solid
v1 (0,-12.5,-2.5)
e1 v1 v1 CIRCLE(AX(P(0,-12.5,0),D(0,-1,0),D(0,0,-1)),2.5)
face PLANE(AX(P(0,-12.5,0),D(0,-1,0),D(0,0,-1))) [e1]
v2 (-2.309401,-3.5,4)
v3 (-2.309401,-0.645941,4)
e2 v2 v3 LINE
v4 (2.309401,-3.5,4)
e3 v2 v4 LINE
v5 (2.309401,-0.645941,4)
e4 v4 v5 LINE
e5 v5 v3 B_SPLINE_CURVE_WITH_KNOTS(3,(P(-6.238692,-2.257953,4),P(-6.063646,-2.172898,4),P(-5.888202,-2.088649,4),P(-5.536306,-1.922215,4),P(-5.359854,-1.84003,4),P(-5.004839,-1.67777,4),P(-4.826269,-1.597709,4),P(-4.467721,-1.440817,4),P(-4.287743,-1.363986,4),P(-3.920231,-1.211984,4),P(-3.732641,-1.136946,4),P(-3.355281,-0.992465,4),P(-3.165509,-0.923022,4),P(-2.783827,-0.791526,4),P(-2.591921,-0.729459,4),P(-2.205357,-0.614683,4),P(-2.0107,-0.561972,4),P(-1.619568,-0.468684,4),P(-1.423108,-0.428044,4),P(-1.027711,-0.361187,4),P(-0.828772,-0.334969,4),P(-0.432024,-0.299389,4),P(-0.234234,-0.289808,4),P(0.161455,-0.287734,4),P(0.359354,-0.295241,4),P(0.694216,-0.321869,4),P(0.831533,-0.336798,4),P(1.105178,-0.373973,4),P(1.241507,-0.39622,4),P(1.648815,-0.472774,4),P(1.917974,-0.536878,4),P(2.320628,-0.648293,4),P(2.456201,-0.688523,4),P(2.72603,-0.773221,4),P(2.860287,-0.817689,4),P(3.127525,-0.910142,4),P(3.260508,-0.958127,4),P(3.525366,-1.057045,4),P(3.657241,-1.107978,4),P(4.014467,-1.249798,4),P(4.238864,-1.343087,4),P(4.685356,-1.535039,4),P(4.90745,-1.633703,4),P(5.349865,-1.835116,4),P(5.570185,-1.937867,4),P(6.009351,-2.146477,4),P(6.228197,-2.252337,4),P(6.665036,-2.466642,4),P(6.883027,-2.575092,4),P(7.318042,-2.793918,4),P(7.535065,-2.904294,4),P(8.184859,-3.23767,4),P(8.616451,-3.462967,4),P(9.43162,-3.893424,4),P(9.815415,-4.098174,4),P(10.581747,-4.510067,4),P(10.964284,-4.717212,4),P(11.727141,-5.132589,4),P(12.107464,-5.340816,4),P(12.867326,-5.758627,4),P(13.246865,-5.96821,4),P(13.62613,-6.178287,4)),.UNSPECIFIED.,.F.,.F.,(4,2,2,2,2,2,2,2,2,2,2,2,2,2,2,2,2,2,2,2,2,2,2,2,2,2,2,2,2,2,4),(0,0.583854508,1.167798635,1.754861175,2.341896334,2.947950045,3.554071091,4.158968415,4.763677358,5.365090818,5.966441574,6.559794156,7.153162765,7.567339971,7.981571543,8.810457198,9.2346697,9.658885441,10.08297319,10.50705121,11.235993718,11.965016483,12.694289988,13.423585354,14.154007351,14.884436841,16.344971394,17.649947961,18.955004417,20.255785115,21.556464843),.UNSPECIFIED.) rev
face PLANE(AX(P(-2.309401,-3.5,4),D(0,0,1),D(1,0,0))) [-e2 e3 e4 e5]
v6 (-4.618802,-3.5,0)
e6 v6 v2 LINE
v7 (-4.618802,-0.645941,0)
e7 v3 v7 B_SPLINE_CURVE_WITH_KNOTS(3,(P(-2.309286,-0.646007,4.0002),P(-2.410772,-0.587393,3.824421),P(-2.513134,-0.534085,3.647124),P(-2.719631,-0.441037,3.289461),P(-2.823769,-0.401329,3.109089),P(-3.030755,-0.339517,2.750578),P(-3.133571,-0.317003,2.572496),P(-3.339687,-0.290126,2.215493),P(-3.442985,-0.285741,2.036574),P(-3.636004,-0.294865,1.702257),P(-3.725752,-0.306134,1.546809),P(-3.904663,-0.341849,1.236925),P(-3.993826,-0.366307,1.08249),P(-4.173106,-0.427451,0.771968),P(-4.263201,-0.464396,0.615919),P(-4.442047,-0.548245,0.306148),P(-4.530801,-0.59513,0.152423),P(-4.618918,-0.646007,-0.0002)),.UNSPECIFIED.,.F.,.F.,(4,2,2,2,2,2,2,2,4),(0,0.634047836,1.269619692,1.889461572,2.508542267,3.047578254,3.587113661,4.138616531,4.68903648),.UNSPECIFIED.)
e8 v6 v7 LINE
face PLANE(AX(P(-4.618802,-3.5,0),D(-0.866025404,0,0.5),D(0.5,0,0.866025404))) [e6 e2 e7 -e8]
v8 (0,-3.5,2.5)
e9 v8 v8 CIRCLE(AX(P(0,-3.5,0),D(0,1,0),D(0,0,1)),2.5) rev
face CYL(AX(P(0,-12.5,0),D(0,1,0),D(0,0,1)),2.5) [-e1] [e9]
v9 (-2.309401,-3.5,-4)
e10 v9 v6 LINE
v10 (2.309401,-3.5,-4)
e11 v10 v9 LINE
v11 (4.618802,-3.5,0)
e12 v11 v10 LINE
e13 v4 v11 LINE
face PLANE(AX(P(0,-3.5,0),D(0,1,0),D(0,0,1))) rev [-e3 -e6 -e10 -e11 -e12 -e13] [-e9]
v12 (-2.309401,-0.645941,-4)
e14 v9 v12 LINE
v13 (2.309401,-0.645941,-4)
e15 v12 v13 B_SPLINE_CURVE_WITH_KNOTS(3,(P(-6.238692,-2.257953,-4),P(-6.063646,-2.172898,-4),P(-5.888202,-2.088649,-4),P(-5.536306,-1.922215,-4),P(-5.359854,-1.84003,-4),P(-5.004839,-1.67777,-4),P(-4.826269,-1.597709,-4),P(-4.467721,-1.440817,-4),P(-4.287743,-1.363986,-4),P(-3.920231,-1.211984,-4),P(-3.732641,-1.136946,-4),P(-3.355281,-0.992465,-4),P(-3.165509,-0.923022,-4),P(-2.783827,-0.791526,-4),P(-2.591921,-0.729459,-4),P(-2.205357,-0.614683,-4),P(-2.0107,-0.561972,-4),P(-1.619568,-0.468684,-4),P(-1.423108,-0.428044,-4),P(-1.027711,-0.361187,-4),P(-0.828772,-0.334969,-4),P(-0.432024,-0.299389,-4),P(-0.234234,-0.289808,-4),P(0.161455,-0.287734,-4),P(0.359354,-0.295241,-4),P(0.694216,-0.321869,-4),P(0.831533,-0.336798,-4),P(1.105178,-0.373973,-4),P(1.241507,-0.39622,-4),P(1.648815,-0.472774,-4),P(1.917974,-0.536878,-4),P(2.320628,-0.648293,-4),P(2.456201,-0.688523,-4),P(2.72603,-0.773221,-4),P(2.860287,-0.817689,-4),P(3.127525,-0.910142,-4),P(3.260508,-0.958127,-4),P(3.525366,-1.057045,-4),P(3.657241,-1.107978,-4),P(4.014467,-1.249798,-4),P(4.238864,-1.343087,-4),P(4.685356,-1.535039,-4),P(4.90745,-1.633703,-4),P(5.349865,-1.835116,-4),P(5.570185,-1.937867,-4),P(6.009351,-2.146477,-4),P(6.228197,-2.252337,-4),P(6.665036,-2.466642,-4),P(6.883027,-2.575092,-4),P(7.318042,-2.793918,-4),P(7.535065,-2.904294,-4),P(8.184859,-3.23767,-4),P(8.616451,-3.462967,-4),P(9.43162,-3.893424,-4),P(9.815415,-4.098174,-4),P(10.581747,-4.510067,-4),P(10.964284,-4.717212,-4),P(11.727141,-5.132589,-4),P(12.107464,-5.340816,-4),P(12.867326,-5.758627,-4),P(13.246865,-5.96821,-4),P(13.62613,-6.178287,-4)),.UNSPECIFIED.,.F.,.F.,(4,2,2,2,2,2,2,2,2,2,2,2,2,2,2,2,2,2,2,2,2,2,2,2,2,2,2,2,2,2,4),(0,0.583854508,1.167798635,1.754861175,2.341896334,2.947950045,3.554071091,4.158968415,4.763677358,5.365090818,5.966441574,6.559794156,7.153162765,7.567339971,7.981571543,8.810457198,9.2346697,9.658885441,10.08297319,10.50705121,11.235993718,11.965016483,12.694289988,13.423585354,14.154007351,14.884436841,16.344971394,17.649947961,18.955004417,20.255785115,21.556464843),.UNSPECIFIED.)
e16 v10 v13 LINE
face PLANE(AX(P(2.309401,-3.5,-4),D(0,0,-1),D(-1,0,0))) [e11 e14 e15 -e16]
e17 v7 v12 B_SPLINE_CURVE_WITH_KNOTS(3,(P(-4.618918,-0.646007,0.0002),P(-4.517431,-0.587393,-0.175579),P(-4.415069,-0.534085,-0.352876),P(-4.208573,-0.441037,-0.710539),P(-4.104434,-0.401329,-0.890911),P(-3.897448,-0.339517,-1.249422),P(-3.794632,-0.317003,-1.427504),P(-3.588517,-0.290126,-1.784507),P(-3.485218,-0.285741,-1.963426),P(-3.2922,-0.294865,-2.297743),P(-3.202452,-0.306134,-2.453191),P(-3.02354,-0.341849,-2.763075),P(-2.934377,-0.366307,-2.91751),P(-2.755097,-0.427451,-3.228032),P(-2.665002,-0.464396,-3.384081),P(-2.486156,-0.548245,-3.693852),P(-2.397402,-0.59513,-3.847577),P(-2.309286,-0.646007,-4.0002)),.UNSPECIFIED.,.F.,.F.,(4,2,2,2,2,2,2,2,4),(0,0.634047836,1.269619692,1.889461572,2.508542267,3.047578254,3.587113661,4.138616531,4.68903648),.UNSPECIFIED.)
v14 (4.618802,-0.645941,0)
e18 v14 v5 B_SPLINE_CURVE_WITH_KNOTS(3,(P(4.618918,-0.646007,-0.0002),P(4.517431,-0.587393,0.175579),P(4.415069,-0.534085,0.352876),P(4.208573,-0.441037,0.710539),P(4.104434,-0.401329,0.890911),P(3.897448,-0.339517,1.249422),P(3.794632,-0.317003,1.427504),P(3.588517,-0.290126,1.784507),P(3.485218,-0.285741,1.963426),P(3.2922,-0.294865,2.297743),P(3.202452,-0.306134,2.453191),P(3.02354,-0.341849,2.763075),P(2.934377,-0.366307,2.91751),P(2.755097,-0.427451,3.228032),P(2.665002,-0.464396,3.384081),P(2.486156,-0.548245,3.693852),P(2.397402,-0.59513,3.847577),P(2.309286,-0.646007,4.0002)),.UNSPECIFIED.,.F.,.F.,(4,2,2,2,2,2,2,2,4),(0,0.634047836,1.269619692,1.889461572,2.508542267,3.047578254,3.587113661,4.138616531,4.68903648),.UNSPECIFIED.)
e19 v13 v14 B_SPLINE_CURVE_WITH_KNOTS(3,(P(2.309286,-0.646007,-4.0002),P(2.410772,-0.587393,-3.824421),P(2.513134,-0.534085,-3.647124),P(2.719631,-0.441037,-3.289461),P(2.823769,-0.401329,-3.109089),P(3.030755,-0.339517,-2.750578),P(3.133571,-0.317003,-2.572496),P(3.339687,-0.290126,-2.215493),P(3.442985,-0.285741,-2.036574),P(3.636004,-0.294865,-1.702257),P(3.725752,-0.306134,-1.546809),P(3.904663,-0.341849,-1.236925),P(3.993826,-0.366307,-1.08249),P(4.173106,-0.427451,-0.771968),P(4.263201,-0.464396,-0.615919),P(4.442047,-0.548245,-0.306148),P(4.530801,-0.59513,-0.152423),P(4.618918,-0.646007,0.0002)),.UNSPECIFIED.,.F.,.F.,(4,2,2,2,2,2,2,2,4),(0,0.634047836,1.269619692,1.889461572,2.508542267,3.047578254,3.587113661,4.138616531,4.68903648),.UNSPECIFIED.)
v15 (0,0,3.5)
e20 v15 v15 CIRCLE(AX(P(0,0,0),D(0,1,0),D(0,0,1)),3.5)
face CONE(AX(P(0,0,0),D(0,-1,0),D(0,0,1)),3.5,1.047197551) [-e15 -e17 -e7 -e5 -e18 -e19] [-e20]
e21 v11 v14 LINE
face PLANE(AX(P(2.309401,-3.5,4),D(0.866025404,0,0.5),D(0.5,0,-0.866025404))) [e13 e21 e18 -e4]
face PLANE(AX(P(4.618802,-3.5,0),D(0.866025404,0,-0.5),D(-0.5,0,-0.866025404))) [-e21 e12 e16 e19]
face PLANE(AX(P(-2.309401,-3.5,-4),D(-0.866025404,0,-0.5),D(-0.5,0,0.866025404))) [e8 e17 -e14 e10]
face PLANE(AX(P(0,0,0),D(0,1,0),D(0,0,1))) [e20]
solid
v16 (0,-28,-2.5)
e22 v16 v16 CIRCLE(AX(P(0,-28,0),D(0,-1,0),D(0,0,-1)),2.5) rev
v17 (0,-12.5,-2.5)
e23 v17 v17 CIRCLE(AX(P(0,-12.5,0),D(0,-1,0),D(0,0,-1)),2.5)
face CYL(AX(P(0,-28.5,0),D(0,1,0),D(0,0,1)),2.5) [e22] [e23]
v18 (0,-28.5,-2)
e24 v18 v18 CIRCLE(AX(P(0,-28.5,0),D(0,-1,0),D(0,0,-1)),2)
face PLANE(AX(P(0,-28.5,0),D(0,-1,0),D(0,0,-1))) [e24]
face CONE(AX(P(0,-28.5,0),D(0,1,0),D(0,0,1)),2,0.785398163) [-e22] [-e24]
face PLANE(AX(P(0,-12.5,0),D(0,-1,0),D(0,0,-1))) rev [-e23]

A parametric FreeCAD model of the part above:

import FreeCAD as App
import Part
import Sketcher
from FreeCAD import Vector
Q = App.Units.Quantity


def edges_at(feature, points):
    """Names of the edges that pass closest to the given points."""
    edges = feature.Shape.Edges
    near = lambda p: min(range(len(edges)), key=lambda i: edges[i].distToShape(Part.Vertex(*p))[0])
    return sorted({f"Edge{near(p) + 1}" for p in points})


def add_polygon(sketch, points):
    """Adds a closed chain of lines whose ends are joined by coincident constraints."""
    first, n = sketch.GeometryCount, len(points)
    for a, b in zip(points, points[1:] + points[:1]):
        sketch.addGeometry(Part.LineSegment(App.Vector(*a, 0), App.Vector(*b, 0)), False)
    for i in range(n):
        sketch.addConstraint(Sketcher.Constraint("Coincident", first + i, 2, first + (i + 1) % n, 1))

doc = App.newDocument("Part")
body = doc.addObject("PartDesign::Body", "Body")

# Sketch on XZ plane
sketch1 = body.newObject("Sketcher::SketchObject", "Sketch")
sketch1.AttachmentSupport = (doc.getObject("XZ_Plane"), [""])
sketch1.MapMode = "FlatFace"
add_polygon(sketch1, [(-4.6, 0), (-2.3, 4), (2.3, 4), (4.6, 0), (2.3, -4), (-2.3, -4)])  # lines 0-5
sketch1.addConstraint([
    Sketcher.Constraint("Horizontal", 1),
    Sketcher.Constraint("Horizontal", 4),
    Sketcher.Constraint("Symmetric", 0, 2, 3, 2, -1, 1),
    Sketcher.Constraint("Symmetric", 2, 2, 5, 2, -1, 1),
    Sketcher.Constraint("PointOnObject", 2, 2, -1),
    Sketcher.Constraint("Parallel", 2, 5),
    Sketcher.Constraint("Vertical", 1, 2, 3, 2),
    Sketcher.Constraint("Angle", 0, Q("60 deg")),
    Sketcher.Constraint("DistanceY", -1, 1, 0, 2, 4.0),
    Sketcher.Constraint("DistanceX", 0, 2, -1, 1, 2.309401),
])
pad1 = body.newObject("PartDesign::Pad", "Pad")
pad1.Profile = sketch1
pad1.Length = 3.5

# Sketch on XZ plane
sketch2 = body.newObject("Sketcher::SketchObject", "Sketch001")
sketch2.AttachmentSupport = (doc.getObject("XZ_Plane"), [""])
sketch2.MapMode = "FlatFace"
add_polygon(sketch2, [(-20.8, -20.2), (-20.8, 20.2), (20.8, 20.2), (20.8, -20.2)])  # lines 0-3
sketch2.addGeometry(Part.Circle(Vector(0, 0, 0), Vector(0, 0, 1), 3.5), False)  # 4
sketch2.addConstraint([
    Sketcher.Constraint("Vertical", 0),
    Sketcher.Constraint("Horizontal", 1),
    Sketcher.Constraint("Vertical", 2),
    Sketcher.Constraint("Horizontal", 3),
    Sketcher.Constraint("Coincident", 4, 3, -1, 1),
    Sketcher.Constraint("Symmetric", 0, 2, 2, 2, -1, 1),
    Sketcher.Constraint("Diameter", 4, 7.0),
    Sketcher.Constraint("DistanceY", 0, 1, 0, 2, 40.4),
    Sketcher.Constraint("DistanceX", 1, 1, 1, 2, 41.638),
])
pocket1 = body.newObject("PartDesign::Pocket", "Pocket")
pocket1.Profile = sketch2
pocket1.Length = 8.041543
pocket1.Reversed = True
pocket1.TaperAngle = 60

# Sketch on XZ plane
sketch3 = body.newObject("Sketcher::SketchObject", "Sketch002")
sketch3.AttachmentSupport = (doc.getObject("XZ_Plane"), [""])
sketch3.MapMode = "FlatFace"
add_polygon(sketch3, [(-20.8, -20.2), (-20.8, 20.2), (20.8, 20.2), (20.8, -20.2)])  # lines 0-3
sketch3.addGeometry(Part.Circle(Vector(0, 0, 0), Vector(0, 0, 1), 3.5), False)  # 4
sketch3.addConstraint([
    Sketcher.Constraint("Vertical", 0),
    Sketcher.Constraint("Horizontal", 1),
    Sketcher.Constraint("Vertical", 2),
    Sketcher.Constraint("Horizontal", 3),
    Sketcher.Constraint("Coincident", 4, 3, -1, 1),
    Sketcher.Constraint("Symmetric", 0, 2, 2, 2, -1, 1),
    Sketcher.Constraint("Diameter", 4, 7.0),
    Sketcher.Constraint("DistanceY", 0, 1, 0, 2, 40.4),
    Sketcher.Constraint("DistanceX", 1, 1, 1, 2, 41.638),
])
pocket2 = body.newObject("PartDesign::Pocket", "Pocket001")
pocket2.Profile = sketch3
pocket2.Length = 8.041543

# Sketch on XZ plane
sketch4 = body.newObject("Sketcher::SketchObject", "Sketch003")
sketch4.AttachmentSupport = (doc.getObject("XZ_Plane"), [""])
sketch4.MapMode = "FlatFace"
sketch4.AttachmentOffset = App.Placement(Vector(0, 0, 3.5), App.Rotation())
sketch4.addGeometry(Part.Circle(Vector(0, 0, 0), Vector(0, 0, 1), 2.5), False)
sketch4.addConstraint([
    Sketcher.Constraint("Coincident", 0, 3, -1, 1),
    Sketcher.Constraint("Diameter", 0, 5.0),
])
pad2 = body.newObject("PartDesign::Pad", "Pad001")
pad2.Profile = sketch4
pad2.Length = 9
body2 = doc.addObject("PartDesign::Body", "Body001")

# Sketch on XZ plane
sketch5 = body2.newObject("Sketcher::SketchObject", "Sketch004")
sketch5.AttachmentSupport = (doc.getObject("XZ_Plane001"), [""])
sketch5.MapMode = "FlatFace"
sketch5.AttachmentOffset = App.Placement(Vector(0, 0, 12.5), App.Rotation())
sketch5.addGeometry(Part.Circle(Vector(0, 0, 0), Vector(0, 0, 1), 2.5), False)
sketch5.addConstraint([
    Sketcher.Constraint("Coincident", 0, 3, -1, 1),
    Sketcher.Constraint("Diameter", 0, 5.0),
])
pad3 = body2.newObject("PartDesign::Pad", "Pad002")
pad3.Profile = sketch5
pad3.Length = 16
doc.recompute()

chamfer = body2.newObject("PartDesign::Chamfer", "Chamfer")
chamfer.Base = (pad3, edges_at(pad3, [(0, -28.5, 2.5)]))
chamfer.Size = 0.5

doc.recompute()
